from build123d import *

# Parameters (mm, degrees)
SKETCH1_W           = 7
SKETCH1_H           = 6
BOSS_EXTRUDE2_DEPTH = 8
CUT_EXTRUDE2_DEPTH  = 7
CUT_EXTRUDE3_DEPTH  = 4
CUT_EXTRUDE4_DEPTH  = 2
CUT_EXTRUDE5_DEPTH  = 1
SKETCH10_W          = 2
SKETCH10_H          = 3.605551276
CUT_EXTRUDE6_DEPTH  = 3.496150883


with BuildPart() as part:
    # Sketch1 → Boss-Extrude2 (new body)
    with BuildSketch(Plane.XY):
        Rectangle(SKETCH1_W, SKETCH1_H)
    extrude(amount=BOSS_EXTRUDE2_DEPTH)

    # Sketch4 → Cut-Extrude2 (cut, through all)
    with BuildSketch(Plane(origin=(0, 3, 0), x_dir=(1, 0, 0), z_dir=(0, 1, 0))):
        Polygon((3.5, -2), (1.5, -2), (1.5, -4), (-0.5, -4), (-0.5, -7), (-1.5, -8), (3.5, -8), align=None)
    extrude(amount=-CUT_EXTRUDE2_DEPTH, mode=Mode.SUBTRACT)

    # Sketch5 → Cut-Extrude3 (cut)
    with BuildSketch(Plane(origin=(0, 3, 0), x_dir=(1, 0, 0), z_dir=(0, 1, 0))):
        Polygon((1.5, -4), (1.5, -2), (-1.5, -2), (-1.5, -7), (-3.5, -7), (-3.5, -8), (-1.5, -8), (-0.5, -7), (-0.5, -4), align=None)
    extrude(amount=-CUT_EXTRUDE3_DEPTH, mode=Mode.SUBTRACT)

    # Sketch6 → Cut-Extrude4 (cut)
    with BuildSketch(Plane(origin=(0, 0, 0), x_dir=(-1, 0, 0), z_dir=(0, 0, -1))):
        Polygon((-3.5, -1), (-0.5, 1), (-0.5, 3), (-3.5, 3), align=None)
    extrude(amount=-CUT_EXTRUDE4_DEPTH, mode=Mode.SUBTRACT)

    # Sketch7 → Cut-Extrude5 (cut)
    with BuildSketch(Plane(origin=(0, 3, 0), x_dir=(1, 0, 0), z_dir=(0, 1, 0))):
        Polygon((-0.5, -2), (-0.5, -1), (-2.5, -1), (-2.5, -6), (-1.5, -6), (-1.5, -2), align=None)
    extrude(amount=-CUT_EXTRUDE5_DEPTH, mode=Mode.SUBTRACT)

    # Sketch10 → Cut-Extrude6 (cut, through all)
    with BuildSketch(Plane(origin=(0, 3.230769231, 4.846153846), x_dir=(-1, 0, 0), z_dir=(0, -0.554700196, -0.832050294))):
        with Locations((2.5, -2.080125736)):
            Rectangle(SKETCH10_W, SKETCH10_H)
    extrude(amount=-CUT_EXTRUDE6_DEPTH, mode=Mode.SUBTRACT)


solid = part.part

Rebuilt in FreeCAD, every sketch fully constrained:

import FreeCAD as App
import Part
import Sketcher
from FreeCAD import Vector
Q = App.Units.Quantity


def add_polygon(sketch, points):
    """Adds a closed chain of lines whose ends are joined by coincident constraints."""
    first, n = sketch.GeometryCount, len(points)
    for a, b in zip(points, points[1:] + points[:1]):
        sketch.addGeometry(Part.LineSegment(App.Vector(*a, 0), App.Vector(*b, 0)), False)
    for i in range(n):
        sketch.addConstraint(Sketcher.Constraint("Coincident", first + i, 2, first + (i + 1) % n, 1))

doc = App.newDocument("Part")
body = doc.addObject("PartDesign::Body", "Body")

# Sketch on XY plane
sketch1 = body.newObject("Sketcher::SketchObject", "Sketch")
sketch1.AttachmentSupport = (doc.getObject("XY_Plane"), [""])
sketch1.MapMode = "FlatFace"
add_polygon(sketch1, [(-3.5, 3), (-3.5, -3), (3.5, -3), (3.5, 3)])  # lines 0-3
sketch1.addConstraint(Sketcher.Constraint("Vertical", 0))
sketch1.addConstraint(Sketcher.Constraint("Horizontal", 1))
sketch1.addConstraint(Sketcher.Constraint("Vertical", 2))
sketch1.addConstraint(Sketcher.Constraint("Horizontal", 3))
sketch1.addConstraint(Sketcher.Constraint("Symmetric", 0, 2, 2, 2, -1, 1))
sketch1.addConstraint(Sketcher.Constraint("DistanceX", 1, 1, 1, 2, Q("7 mm")))
sketch1.addConstraint(Sketcher.Constraint("DistanceY", 0, 2, 0, 1, Q("6 mm")))
pad1 = body.newObject("PartDesign::Pad", "Pad")
pad1.Profile = sketch1
pad1.Length = 8

# Sketch on XZ plane
sketch2 = body.newObject("Sketcher::SketchObject", "Sketch001")
sketch2.AttachmentSupport = (doc.getObject("XZ_Plane"), [""])
sketch2.MapMode = "FlatFace"
sketch2.AttachmentOffset = App.Placement(Vector(0, 0, -3), App.Rotation())
add_polygon(sketch2, [(3.5, 2), (1.5, 2), (1.5, 4), (-0.5, 4), (-0.5, 7), (-1.5, 8), (3.5, 8)])  # lines 0-6
sketch2.addConstraint(Sketcher.Constraint("Horizontal", 0))
sketch2.addConstraint(Sketcher.Constraint("Vertical", 1))
sketch2.addConstraint(Sketcher.Constraint("Horizontal", 2))
sketch2.addConstraint(Sketcher.Constraint("Vertical", 3))
sketch2.addConstraint(Sketcher.Constraint("Horizontal", 5))
sketch2.addConstraint(Sketcher.Constraint("Vertical", 6))
sketch2.addConstraint(Sketcher.Constraint("Equal", 0, 2))
sketch2.addConstraint(Sketcher.Constraint("Equal", 2, 1))
sketch2.addConstraint(Sketcher.Constraint("DistanceX", 0, 2, 0, 1, Q("2 mm")))
sketch2.addConstraint(Sketcher.Constraint("DistanceX", 5, 1, 5, 2, Q("5 mm")))
sketch2.addConstraint(Sketcher.Constraint("DistanceY", 3, 1, 3, 2, Q("3 mm")))
sketch2.addConstraint(Sketcher.Constraint("DistanceY", 6, 2, 6, 1, Q("6 mm")))
sketch2.addConstraint(Sketcher.Constraint("DistanceY", -1, 1, 0, 2, Q("2 mm")))
sketch2.addConstraint(Sketcher.Constraint("DistanceX", -1, 1, 0, 2, Q("1.5 mm")))
pocket1 = body.newObject("PartDesign::Pocket", "Pocket")
pocket1.Profile = sketch2
pocket1.Type = "ThroughAll"
pocket1.Reversed = True

# Sketch on XZ plane
sketch3 = body.newObject("Sketcher::SketchObject", "Sketch002")
sketch3.AttachmentSupport = (doc.getObject("XZ_Plane"), [""])
sketch3.MapMode = "FlatFace"
sketch3.AttachmentOffset = App.Placement(Vector(0, 0, -3), App.Rotation())
add_polygon(sketch3, [(1.5, 4), (1.5, 2), (-1.5, 2), (-1.5, 7), (-3.5, 7), (-3.5, 8), (-1.5, 8), (-0.5, 7), (-0.5, 4)])  # lines 0-8
sketch3.addConstraint(Sketcher.Constraint("Vertical", 0))
sketch3.addConstraint(Sketcher.Constraint("Horizontal", 1))
sketch3.addConstraint(Sketcher.Constraint("Vertical", 2))
sketch3.addConstraint(Sketcher.Constraint("Horizontal", 3))
sketch3.addConstraint(Sketcher.Constraint("Vertical", 4))
sketch3.addConstraint(Sketcher.Constraint("Horizontal", 5))
sketch3.addConstraint(Sketcher.Constraint("Vertical", 7))
sketch3.addConstraint(Sketcher.Constraint("Horizontal", 8))
sketch3.addConstraint(Sketcher.Constraint("Horizontal", 3, 2, 6, 2))
sketch3.addConstraint(Sketcher.Constraint("Vertical", 2, 2, 5, 2))
sketch3.addConstraint(Sketcher.Constraint("Equal", 5, 8))
sketch3.addConstraint(Sketcher.Constraint("Equal", 8, 0))
sketch3.addConstraint(Sketcher.Constraint("Equal", 1, 7))
sketch3.addConstraint(Sketcher.Constraint("DistanceX", 1, 2, 1, 1, Q("3 mm")))
sketch3.addConstraint(Sketcher.Constraint("DistanceX", 3, 2, 3, 1, Q("2 mm")))
sketch3.addConstraint(Sketcher.Constraint("DistanceY", 4, 1, 4, 2, Q("1 mm")))
sketch3.addConstraint(Sketcher.Constraint("DistanceY", -1, 1, 0, 2, Q("2 mm")))
sketch3.addConstraint(Sketcher.Constraint("DistanceX", -1, 1, 0, 2, Q("1.5 mm")))
pocket2 = body.newObject("PartDesign::Pocket", "Pocket001")
pocket2.Profile = sketch3
pocket2.Length = 4
pocket2.Reversed = True

# Sketch on XY plane
sketch4 = body.newObject("Sketcher::SketchObject", "Sketch003")
sketch4.AttachmentSupport = (doc.getObject("XY_Plane"), [""])
sketch4.MapMode = "FlatFace"
add_polygon(sketch4, [(3.5, -1), (0.5, 1), (0.5, 3), (3.5, 3)])  # lines 0-3
sketch4.addConstraint(Sketcher.Constraint("Vertical", 1))
sketch4.addConstraint(Sketcher.Constraint("Horizontal", 2))
sketch4.addConstraint(Sketcher.Constraint("Vertical", 3))
sketch4.addConstraint(Sketcher.Constraint("DistanceX", 2, 1, 2, 2, Q("3 mm")))
sketch4.addConstraint(Sketcher.Constraint("DistanceY", 1, 1, 1, 2, Q("2 mm")))
sketch4.addConstraint(Sketcher.Constraint("DistanceY", 3, 2, 3, 1, Q("4 mm")))
sketch4.addConstraint(Sketcher.Constraint("DistanceY", -1, 1, 0, 2, Q("1 mm")))
sketch4.addConstraint(Sketcher.Constraint("DistanceX", -1, 1, 0, 2, Q("0.5 mm")))
pocket3 = body.newObject("PartDesign::Pocket", "Pocket002")
pocket3.Profile = sketch4
pocket3.Length = 2
pocket3.Reversed = True

# Sketch on XZ plane
sketch5 = body.newObject("Sketcher::SketchObject", "Sketch004")
sketch5.AttachmentSupport = (doc.getObject("XZ_Plane"), [""])
sketch5.MapMode = "FlatFace"
sketch5.AttachmentOffset = App.Placement(Vector(0, 0, -3), App.Rotation())
add_polygon(sketch5, [(-0.5, 2), (-0.5, 1), (-2.5, 1), (-2.5, 6), (-1.5, 6), (-1.5, 2)])  # lines 0-5
sketch5.addConstraint(Sketcher.Constraint("Vertical", 0))
sketch5.addConstraint(Sketcher.Constraint("Horizontal", 1))
sketch5.addConstraint(Sketcher.Constraint("Vertical", 2))
sketch5.addConstraint(Sketcher.Constraint("Horizontal", 3))
sketch5.addConstraint(Sketcher.Constraint("Vertical", 4))
sketch5.addConstraint(Sketcher.Constraint("Horizontal", 5))
sketch5.addConstraint(Sketcher.Constraint("Equal", 3, 5))
sketch5.addConstraint(Sketcher.Constraint("Equal", 5, 0))
sketch5.addConstraint(Sketcher.Constraint("DistanceX", 1, 2, 1, 1, Q("2 mm")))
sketch5.addConstraint(Sketcher.Constraint("DistanceY", 2, 1, 2, 2, Q("5 mm")))
sketch5.addConstraint(Sketcher.Constraint("DistanceY", -1, 1, 0, 2, Q("1 mm")))
sketch5.addConstraint(Sketcher.Constraint("DistanceX", 0, 2, -1, 1, Q("0.5 mm")))
pocket4 = body.newObject("PartDesign::Pocket", "Pocket003")
pocket4.Profile = sketch5
pocket4.Length = 1
pocket4.Reversed = True

# Sketch on an angled plane
sketch6 = body.newObject("Sketcher::SketchObject", "Sketch005")
sketch6.Placement = App.Placement(Vector(0, 3.230769, 4.846154), App.Rotation(Vector(-1, 0, 0), Vector(0, 0.832050294, -0.554700196), Vector(0, -0.554700196, -0.832050294), "ZXY"))
add_polygon(sketch6, [(1.5, -0.27735), (1.5, -3.882901), (3.5, -3.882901), (3.5, -0.27735)])  # lines 0-3
sketch6.addConstraint(Sketcher.Constraint("Vertical", 0))
sketch6.addConstraint(Sketcher.Constraint("Horizontal", 1))
sketch6.addConstraint(Sketcher.Constraint("Vertical", 2))
sketch6.addConstraint(Sketcher.Constraint("Horizontal", 3))
sketch6.addConstraint(Sketcher.Constraint("DistanceX", 1, 1, 1, 2, Q("2 mm")))
sketch6.addConstraint(Sketcher.Constraint("DistanceX", -1, 1, 0, 2, Q("1.5 mm")))
sketch6.addConstraint(Sketcher.Constraint("DistanceY", 0, 2, 0, 1, Q("3.605551 mm")))
sketch6.addConstraint(Sketcher.Constraint("DistanceY", 0, 2, -1, 1, Q("3.882901 mm")))
pocket5 = body.newObject("PartDesign::Pocket", "Pocket004")
pocket5.Profile = sketch6
pocket5.Type = "ThroughAll"

doc.recompute()
